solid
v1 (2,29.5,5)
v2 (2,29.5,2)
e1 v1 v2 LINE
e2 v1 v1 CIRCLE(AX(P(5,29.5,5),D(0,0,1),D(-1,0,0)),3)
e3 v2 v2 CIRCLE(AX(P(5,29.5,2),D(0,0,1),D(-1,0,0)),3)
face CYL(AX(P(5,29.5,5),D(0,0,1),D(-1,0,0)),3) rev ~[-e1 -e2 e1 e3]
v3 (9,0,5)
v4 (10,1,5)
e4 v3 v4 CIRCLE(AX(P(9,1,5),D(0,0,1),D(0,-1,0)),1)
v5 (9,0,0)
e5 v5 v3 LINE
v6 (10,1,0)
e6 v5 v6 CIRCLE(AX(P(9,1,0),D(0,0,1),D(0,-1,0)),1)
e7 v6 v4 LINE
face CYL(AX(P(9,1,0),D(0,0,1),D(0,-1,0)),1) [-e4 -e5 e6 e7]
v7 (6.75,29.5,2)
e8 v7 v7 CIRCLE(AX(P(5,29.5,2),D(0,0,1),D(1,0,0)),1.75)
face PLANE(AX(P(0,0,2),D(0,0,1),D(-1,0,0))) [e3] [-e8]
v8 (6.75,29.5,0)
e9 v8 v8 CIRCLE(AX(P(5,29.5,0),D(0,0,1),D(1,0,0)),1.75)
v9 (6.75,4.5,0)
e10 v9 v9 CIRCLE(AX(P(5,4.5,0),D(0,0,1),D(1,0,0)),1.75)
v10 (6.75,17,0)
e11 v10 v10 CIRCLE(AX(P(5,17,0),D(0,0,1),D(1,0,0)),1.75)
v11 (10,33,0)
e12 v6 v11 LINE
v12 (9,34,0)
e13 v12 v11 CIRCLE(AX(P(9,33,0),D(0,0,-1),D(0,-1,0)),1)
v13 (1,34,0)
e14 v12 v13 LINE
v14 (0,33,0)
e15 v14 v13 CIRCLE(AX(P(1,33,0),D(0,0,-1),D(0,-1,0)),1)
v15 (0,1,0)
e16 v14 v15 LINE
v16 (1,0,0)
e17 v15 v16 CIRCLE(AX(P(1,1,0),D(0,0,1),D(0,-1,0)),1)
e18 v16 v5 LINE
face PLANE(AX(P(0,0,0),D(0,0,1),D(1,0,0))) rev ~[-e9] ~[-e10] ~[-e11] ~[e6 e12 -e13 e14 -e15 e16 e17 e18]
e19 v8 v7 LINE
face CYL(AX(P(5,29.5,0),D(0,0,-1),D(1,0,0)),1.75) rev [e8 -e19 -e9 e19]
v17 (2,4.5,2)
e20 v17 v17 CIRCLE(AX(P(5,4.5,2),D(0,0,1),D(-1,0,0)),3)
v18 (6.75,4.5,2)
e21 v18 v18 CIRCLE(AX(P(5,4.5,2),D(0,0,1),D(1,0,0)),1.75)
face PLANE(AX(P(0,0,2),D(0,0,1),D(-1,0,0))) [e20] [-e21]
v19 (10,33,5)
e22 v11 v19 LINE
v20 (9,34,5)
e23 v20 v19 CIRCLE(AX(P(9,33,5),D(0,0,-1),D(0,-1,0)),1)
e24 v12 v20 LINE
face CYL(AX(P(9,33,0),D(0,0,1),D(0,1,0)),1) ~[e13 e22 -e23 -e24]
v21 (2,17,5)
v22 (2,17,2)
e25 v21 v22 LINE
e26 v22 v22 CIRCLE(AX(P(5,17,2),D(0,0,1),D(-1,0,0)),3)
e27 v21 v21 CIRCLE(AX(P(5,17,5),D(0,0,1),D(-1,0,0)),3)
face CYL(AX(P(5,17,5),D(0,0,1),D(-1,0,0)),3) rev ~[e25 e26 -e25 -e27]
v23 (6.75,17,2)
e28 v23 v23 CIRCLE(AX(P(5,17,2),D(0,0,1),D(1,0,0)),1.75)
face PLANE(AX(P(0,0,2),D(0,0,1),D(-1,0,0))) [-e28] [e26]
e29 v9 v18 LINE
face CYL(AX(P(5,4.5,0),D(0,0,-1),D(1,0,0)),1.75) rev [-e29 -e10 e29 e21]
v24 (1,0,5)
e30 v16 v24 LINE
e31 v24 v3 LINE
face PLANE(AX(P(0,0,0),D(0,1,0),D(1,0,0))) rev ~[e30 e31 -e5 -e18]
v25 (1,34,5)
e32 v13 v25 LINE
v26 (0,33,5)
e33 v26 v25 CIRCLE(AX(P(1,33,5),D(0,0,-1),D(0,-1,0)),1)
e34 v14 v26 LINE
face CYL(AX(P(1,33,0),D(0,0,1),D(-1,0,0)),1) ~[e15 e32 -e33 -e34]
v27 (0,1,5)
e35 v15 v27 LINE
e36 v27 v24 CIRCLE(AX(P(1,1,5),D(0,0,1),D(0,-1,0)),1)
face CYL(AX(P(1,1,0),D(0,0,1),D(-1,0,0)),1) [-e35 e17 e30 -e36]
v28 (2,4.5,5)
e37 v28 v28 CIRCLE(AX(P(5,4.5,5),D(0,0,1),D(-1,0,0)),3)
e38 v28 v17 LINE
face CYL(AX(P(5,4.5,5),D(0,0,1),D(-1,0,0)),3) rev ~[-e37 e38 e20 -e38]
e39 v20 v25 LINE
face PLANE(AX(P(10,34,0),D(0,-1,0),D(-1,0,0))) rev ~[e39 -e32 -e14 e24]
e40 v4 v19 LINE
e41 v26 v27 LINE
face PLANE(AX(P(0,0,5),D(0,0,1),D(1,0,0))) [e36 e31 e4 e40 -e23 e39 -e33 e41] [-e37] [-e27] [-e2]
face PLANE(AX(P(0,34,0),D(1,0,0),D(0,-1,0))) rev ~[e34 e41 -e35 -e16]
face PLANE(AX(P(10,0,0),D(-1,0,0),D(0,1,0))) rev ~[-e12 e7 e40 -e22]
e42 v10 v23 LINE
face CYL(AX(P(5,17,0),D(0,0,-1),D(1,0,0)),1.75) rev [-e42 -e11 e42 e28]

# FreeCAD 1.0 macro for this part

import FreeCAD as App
import Part
import Sketcher
from FreeCAD import Vector
Q = App.Units.Quantity


def edges_at(feature, points):
    """Names of the edges that pass closest to the given points."""
    edges = feature.Shape.Edges
    near = lambda p: min(range(len(edges)), key=lambda i: edges[i].distToShape(Part.Vertex(*p))[0])
    return sorted({f"Edge{near(p) + 1}" for p in points})

doc = App.newDocument("Part")
params = doc.addObject("Spreadsheet::Sheet", "Params")
for row, (alias, value) in enumerate([
    ("sketch1_diameter", "3.5 mm"),
    ("sketch1_width", "10 mm"),
    ("sketch1_height", "34 mm"),
    ("pad1_length", "5 mm"),
    ("sketch2_diameter", "6 mm"),
    ("sketch2_diameter2", "3.5 mm"),
    ("pocket1_length", "3 mm"),
    ("fillet_radius", "1 mm"),
], start=1):
    params.set(f"A{row}", alias)
    params.set(f"B{row}", "=" + value)
    params.setAlias(f"B{row}", alias)

body = doc.addObject("PartDesign::Body", "Body")

# Sketch on XY plane
sketch1 = body.newObject("Sketcher::SketchObject", "Sketch")
sketch1.AttachmentSupport = (doc.getObject("XY_Plane"), [""])
sketch1.MapMode = "FlatFace"
sketch1.addGeometry([
    Part.LineSegment(Vector(0, 34, 0), Vector(0, 0, 0)),  # 0
    Part.LineSegment(Vector(0, 0, 0), Vector(10, 0, 0)),  # 1
    Part.LineSegment(Vector(10, 0, 0), Vector(10, 34, 0)),  # 2
    Part.LineSegment(Vector(10, 34, 0), Vector(0, 34, 0)),  # 3
    Part.Circle(Vector(5, 4.5, 0), Vector(0, 0, 1), 1.8),  # 4
    Part.Circle(Vector(5, 17, 0), Vector(0, 0, 1), 1.8),  # 5
    Part.Circle(Vector(5, 29.5, 0), Vector(0, 0, 1), 1.8),  # 6
], False)
sketch1.addConstraint([
    Sketcher.Constraint("Coincident", 0, 2, 1, 1),
    Sketcher.Constraint("Coincident", 1, 2, 2, 1),
    Sketcher.Constraint("Coincident", 2, 2, 3, 1),
    Sketcher.Constraint("Coincident", 3, 2, 0, 1),
    Sketcher.Constraint("Vertical", 0),
    Sketcher.Constraint("Horizontal", 1),
    Sketcher.Constraint("Vertical", 2),
    Sketcher.Constraint("Horizontal", 3),
    Sketcher.Constraint("Coincident", 0, 2, -1, 1),
    Sketcher.Constraint("Equal", 4, 5),
    Sketcher.Constraint("Equal", 5, 6),
    Sketcher.Constraint("Vertical", 4, 3, 5, 3),
    Sketcher.Constraint("Vertical", 5, 3, 6, 3),
    Sketcher.Constraint("Diameter", 4, Q("3.5 mm")),
    Sketcher.Constraint("DistanceX", 1, 1, 1, 2, Q("10 mm")),
    Sketcher.Constraint("DistanceY", 0, 2, 0, 1, Q("34 mm")),
    Sketcher.Constraint("DistanceY", 4, 3, 5, 3, Q("12.5 mm")),
    Sketcher.Constraint("DistanceY", 5, 3, 6, 3, Q("12.5 mm")),
    Sketcher.Constraint("DistanceX", -1, 1, 4, 3, Q("5 mm")),
    Sketcher.Constraint("DistanceY", -1, 1, 5, 3, Q("17 mm")),
])
sketch1.setExpression("Constraints[13]", "Params.sketch1_diameter")
sketch1.setExpression("Constraints[14]", "Params.sketch1_width")
sketch1.setExpression("Constraints[15]", "Params.sketch1_height")
pad1 = body.newObject("PartDesign::Pad", "Pad")
pad1.Profile = sketch1
pad1.setExpression("Length", "Params.pad1_length")

# Sketch on XY plane
sketch2 = body.newObject("Sketcher::SketchObject", "Sketch001")
sketch2.AttachmentSupport = (doc.getObject("XY_Plane"), [""])
sketch2.MapMode = "FlatFace"
sketch2.AttachmentOffset = App.Placement(Vector(0, 0, 5), App.Rotation())
sketch2.addGeometry([
    Part.Circle(Vector(5, 29.5, 0), Vector(0, 0, 1), 3),  # 0
    Part.Circle(Vector(5, 29.5, 0), Vector(0, 0, 1), 1.8),  # 1
    Part.Circle(Vector(5, 17, 0), Vector(0, 0, 1), 3),  # 2
    Part.Circle(Vector(5, 17, 0), Vector(0, 0, 1), 1.8),  # 3
    Part.Circle(Vector(5, 4.5, 0), Vector(0, 0, 1), 3),  # 4
    Part.Circle(Vector(5, 4.5, 0), Vector(0, 0, 1), 1.8),  # 5
], False)
sketch2.addConstraint([
    Sketcher.Constraint("Coincident", 1, 3, 0, 3),
    Sketcher.Constraint("Coincident", 3, 3, 2, 3),
    Sketcher.Constraint("Coincident", 5, 3, 4, 3),
    Sketcher.Constraint("Equal", 0, 2),
    Sketcher.Constraint("Equal", 1, 3),
    Sketcher.Constraint("Equal", 2, 4),
    Sketcher.Constraint("Equal", 3, 5),
    Sketcher.Constraint("Vertical", 1, 3, 2, 3),
    Sketcher.Constraint("Vertical", 3, 3, 4, 3),
    Sketcher.Constraint("Diameter", 0, Q("6 mm")),
    Sketcher.Constraint("Diameter", 1, Q("3.5 mm")),
    Sketcher.Constraint("DistanceX", -1, 1, 0, 3, Q("5 mm")),
    Sketcher.Constraint("DistanceY", -1, 1, 2, 3, Q("17 mm")),
    Sketcher.Constraint("DistanceY", 4, 3, 0, 3, Q("25 mm")),
    Sketcher.Constraint("DistanceY", -1, 1, 0, 3, Q("29.5 mm")),
])
sketch2.setExpression("Constraints[9]", "Params.sketch2_diameter")
sketch2.setExpression("Constraints[10]", "Params.sketch2_diameter2")
pocket1 = body.newObject("PartDesign::Pocket", "Pocket")
pocket1.Profile = sketch2
pocket1.setExpression("Length", "Params.pocket1_length")
doc.recompute()

fillet = body.newObject("PartDesign::Fillet", "Fillet")
fillet.Base = (pocket1, edges_at(pocket1, [
    (0, 0, 2.5),
    (10, 0, 2.5),
    (10, 34, 2.5),
    (0, 34, 2.5),
]))
fillet.setExpression("Radius", "Params.fillet_radius")

doc.recompute()
